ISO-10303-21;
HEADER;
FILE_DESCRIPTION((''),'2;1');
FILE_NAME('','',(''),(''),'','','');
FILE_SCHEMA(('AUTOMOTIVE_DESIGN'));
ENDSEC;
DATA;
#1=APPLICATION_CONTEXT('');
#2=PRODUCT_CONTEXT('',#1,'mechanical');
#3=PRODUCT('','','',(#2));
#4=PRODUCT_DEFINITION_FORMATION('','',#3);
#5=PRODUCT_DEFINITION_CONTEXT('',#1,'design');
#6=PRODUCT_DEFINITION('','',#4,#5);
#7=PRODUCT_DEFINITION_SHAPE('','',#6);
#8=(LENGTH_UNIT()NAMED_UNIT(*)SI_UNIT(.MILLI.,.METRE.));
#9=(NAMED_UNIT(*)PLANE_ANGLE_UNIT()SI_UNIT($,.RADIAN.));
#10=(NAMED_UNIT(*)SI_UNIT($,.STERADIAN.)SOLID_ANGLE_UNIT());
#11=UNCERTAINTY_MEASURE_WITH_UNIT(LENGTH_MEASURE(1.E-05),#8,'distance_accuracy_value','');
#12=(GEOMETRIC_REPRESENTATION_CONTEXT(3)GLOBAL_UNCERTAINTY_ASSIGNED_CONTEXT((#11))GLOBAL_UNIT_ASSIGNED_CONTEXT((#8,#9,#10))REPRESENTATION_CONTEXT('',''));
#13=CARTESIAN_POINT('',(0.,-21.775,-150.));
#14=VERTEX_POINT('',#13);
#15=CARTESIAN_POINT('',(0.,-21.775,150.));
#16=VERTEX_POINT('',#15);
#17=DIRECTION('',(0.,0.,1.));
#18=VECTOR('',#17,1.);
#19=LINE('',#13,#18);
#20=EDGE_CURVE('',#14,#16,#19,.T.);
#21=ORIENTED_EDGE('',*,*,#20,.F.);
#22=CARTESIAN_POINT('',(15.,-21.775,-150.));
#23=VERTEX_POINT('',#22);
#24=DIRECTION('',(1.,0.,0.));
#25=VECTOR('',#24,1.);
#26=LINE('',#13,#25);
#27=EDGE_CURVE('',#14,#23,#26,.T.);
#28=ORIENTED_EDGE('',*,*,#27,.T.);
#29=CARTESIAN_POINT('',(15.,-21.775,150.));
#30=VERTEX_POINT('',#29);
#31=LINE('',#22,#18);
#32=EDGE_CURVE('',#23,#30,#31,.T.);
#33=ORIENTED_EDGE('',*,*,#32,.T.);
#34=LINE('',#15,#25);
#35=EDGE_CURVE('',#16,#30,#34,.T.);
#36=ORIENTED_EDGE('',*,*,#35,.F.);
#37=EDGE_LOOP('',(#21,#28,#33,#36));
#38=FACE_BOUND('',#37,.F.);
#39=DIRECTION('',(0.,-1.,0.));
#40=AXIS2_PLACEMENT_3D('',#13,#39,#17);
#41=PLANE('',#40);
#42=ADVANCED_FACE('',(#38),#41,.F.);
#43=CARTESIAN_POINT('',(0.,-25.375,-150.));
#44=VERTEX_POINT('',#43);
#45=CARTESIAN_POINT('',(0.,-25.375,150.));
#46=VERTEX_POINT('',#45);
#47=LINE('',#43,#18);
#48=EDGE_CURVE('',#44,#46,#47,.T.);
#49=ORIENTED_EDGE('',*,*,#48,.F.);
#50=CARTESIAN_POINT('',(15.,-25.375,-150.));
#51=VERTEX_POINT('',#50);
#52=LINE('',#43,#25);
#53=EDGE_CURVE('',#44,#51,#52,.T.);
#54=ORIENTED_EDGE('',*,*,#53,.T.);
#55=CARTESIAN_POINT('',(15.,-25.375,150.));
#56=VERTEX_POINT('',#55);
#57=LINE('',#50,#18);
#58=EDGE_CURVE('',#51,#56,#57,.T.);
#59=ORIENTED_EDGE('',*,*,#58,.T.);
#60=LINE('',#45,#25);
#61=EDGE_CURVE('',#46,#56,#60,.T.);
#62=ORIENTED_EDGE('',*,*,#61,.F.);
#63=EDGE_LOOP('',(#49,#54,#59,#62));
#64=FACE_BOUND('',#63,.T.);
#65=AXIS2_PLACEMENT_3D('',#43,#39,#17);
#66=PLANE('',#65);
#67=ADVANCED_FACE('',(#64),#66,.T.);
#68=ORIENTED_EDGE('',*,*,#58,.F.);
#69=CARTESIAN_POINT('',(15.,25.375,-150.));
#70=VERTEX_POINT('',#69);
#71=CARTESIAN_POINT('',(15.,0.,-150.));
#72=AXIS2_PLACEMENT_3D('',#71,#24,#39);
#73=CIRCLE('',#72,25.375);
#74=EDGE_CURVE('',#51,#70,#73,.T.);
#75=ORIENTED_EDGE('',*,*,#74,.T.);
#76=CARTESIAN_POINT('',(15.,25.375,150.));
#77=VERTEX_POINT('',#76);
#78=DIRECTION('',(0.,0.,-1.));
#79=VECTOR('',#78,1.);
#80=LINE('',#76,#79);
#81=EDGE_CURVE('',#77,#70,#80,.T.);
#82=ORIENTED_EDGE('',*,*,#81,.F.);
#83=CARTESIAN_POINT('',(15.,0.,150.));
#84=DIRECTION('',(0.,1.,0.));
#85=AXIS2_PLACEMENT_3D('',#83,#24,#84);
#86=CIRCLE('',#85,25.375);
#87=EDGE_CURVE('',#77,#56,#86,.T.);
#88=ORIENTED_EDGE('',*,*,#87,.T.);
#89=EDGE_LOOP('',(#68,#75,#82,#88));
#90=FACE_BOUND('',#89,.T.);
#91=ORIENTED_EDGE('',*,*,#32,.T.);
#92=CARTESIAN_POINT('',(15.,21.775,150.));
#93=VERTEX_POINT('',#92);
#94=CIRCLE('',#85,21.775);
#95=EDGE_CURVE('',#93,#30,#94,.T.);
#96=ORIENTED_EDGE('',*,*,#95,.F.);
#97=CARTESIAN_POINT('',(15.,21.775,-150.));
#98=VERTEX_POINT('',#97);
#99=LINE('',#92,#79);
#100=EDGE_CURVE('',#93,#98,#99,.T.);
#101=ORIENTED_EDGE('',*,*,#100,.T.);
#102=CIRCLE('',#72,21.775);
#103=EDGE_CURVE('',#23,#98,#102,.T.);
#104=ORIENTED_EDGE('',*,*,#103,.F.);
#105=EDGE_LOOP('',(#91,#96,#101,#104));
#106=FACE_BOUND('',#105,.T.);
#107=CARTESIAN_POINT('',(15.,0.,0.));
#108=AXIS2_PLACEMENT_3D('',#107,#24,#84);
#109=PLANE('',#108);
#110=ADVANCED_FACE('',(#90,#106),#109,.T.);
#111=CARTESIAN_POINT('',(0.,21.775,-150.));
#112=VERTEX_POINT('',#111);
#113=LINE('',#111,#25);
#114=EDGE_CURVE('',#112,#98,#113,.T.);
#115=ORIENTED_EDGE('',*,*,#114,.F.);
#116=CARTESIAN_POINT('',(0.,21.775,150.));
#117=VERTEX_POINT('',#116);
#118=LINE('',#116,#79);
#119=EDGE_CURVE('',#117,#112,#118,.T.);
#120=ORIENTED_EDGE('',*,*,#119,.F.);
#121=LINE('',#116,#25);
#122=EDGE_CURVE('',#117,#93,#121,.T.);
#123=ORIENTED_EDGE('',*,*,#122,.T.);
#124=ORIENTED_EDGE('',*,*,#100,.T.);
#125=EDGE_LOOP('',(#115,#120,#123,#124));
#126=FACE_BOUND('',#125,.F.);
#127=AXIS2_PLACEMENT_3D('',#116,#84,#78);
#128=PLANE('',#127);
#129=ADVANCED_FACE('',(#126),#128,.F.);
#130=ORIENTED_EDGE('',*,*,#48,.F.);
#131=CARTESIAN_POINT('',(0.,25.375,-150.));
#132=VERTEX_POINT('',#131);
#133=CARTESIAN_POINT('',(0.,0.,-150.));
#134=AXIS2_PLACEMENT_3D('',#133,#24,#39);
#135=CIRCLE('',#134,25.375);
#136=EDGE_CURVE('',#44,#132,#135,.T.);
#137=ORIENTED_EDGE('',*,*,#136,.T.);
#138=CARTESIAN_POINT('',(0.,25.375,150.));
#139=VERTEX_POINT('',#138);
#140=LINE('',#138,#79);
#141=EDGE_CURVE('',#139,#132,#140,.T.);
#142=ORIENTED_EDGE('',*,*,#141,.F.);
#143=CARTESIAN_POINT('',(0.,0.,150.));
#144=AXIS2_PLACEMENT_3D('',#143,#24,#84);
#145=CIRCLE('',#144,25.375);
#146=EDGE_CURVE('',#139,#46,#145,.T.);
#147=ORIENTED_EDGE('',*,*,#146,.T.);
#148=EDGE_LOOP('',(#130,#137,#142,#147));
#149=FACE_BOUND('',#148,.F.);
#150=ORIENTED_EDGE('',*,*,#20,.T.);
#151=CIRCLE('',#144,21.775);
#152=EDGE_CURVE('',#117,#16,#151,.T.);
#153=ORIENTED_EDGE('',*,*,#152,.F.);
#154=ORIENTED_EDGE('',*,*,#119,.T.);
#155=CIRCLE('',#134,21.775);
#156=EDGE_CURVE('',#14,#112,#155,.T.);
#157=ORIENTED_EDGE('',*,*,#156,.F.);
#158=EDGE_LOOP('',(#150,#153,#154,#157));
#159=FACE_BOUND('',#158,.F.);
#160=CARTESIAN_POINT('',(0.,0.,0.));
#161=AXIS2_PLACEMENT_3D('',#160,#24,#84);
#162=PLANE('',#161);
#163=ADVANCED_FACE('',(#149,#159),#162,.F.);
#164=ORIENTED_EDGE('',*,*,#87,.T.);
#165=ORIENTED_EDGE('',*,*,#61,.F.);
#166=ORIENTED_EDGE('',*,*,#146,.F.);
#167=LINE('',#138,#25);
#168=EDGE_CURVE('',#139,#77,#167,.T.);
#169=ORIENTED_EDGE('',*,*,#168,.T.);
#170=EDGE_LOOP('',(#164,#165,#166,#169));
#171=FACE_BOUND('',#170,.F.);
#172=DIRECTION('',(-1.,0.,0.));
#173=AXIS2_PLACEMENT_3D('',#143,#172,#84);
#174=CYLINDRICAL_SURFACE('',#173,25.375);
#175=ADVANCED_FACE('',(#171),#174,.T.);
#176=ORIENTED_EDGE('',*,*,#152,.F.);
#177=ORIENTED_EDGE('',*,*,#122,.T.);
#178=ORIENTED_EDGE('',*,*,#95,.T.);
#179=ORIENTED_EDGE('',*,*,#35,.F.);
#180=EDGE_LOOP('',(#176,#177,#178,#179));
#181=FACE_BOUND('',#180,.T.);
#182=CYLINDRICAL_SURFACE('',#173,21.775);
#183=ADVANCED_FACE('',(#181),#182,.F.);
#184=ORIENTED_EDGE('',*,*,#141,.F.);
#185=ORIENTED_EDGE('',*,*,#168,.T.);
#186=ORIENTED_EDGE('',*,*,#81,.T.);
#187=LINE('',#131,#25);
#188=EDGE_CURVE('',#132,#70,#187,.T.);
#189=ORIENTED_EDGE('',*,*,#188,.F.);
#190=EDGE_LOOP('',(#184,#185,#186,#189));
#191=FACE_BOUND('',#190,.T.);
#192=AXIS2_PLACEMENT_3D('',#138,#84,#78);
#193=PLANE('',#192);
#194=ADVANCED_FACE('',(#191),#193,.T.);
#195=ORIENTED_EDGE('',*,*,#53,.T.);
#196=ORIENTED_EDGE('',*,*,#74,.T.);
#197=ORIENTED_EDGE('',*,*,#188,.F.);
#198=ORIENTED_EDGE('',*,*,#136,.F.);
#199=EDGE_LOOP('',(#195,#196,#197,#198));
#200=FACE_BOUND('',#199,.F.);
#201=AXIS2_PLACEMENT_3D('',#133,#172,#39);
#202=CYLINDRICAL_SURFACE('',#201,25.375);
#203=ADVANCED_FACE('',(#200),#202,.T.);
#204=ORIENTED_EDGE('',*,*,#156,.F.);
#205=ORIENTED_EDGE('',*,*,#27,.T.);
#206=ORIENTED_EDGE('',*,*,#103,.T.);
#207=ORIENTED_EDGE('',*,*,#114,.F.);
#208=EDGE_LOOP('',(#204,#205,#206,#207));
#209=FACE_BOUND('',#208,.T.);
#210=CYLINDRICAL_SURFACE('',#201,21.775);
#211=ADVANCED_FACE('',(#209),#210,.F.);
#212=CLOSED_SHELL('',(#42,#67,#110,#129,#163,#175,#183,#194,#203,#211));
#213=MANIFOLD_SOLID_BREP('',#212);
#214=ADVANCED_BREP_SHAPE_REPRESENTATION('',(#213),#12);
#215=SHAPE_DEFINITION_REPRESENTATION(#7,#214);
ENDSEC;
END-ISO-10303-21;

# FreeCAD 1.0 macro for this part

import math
import FreeCAD as App
import Part
import Sketcher
from FreeCAD import Vector

doc = App.newDocument("Part")
body = doc.addObject("PartDesign::Body", "Body")

# Sketch on YZ plane
sketch1 = body.newObject("Sketcher::SketchObject", "Sketch")
sketch1.AttachmentSupport = (doc.getObject("YZ_Plane"), [""])
sketch1.MapMode = "FlatFace"
sketch1.addGeometry([
    Part.LineSegment(Vector(25, -150, 0), Vector(25, 150, 0)),  # 0
    Part.ArcOfCircle(Part.Circle(Vector(0, 150, 0), Vector(0, 0, 1), 25), math.radians(0), math.radians(180)),  # 1
    Part.LineSegment(Vector(-25, 150, 0), Vector(-25, -150, 0)),  # 2
    Part.ArcOfCircle(Part.Circle(Vector(0, -150, 0), Vector(0, 0, 1), 25), math.radians(180), math.radians(360)),  # 3
    Part.ArcOfCircle(Part.Circle(Vector(0, 150, 0), Vector(0, 0, 1), 22), math.radians(0), math.radians(180)),  # 4
    Part.LineSegment(Vector(22, 150, 0), Vector(22, -150, 0)),  # 5
    Part.ArcOfCircle(Part.Circle(Vector(0, -150, 0), Vector(0, 0, 1), 22), math.radians(180), math.radians(360)),  # 6
    Part.LineSegment(Vector(-22, -150, 0), Vector(-22, 150, 0)),  # 7
], False)
sketch1.addConstraint([
    Sketcher.Constraint("Tangent", 0, 2, 1, 1),
    Sketcher.Constraint("Tangent", 1, 2, 2, 1),
    Sketcher.Constraint("Tangent", 2, 2, 3, 1),
    Sketcher.Constraint("Tangent", 3, 2, 0, 1),
    Sketcher.Constraint("Tangent", 4, 1, 5, 1),
    Sketcher.Constraint("Tangent", 5, 2, 6, 2),
    Sketcher.Constraint("Tangent", 6, 1, 7, 1),
    Sketcher.Constraint("Tangent", 7, 2, 4, 2),
    Sketcher.Constraint("Vertical", 0),
    Sketcher.Constraint("Vertical", 2),
    Sketcher.Constraint("Vertical", 5),
    Sketcher.Constraint("Vertical", 7),
    Sketcher.Constraint("Coincident", 4, 3, 1, 3),
    Sketcher.Constraint("Symmetric", 1, 3, 3, 3, -1, 1),
    Sketcher.Constraint("Horizontal", 6, 3, 2, 2),
    Sketcher.Constraint("DistanceY", -1, 1, 1, 3, 150.0),
    Sketcher.Constraint("Radius", 1, 25.375),
    Sketcher.Constraint("Radius", 4, 21.775),
])
pad1 = body.newObject("PartDesign::Pad", "Pad")
pad1.Profile = sketch1
pad1.Length = 15

doc.recompute()
